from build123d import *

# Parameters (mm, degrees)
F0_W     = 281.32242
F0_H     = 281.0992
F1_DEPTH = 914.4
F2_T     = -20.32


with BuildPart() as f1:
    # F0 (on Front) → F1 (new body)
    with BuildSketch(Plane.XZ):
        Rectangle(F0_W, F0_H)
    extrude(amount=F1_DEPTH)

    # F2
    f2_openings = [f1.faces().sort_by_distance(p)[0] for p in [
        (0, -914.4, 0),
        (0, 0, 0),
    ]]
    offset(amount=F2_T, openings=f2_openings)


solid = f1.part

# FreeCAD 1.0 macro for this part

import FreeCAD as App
import Part
import Sketcher

V = App.Vector
Q = App.Units.Quantity


def faces_at(feature, points):
    """Names of the faces that lie closest to the given points."""
    faces = feature.Shape.Faces
    near = lambda p: min(range(len(faces)), key=lambda i: faces[i].distToShape(Part.Vertex(*p))[0])
    return sorted({f"Face{near(p) + 1}" for p in points})

doc = App.newDocument("Part")
params = doc.addObject("Spreadsheet::Sheet", "Params")
for row, (alias, value) in enumerate([
    ("pad1_length", "36 in"),
    ("thickness_wall", "0.8 in"),
], start=1):
    params.set(f"A{row}", alias)
    params.set(f"B{row}", "=" + value)
    params.setAlias(f"B{row}", alias)

body = doc.addObject("PartDesign::Body", "Body")

# Sketch on XZ plane
sketch1 = body.newObject("Sketcher::SketchObject", "Sketch")
sketch1.AttachmentSupport = (doc.getObject("XZ_Plane"), [""])
sketch1.MapMode = "FlatFace"
sketch1.addGeometry(Part.LineSegment(V(-140.66121, 140.5496, 0), V(-140.66121, -140.5496, 0)), False)
sketch1.addGeometry(Part.LineSegment(V(-140.66121, -140.5496, 0), V(140.66121, -140.5496, 0)), False)
sketch1.addGeometry(Part.LineSegment(V(140.66121, -140.5496, 0), V(140.66121, 140.5496, 0)), False)
sketch1.addGeometry(Part.LineSegment(V(140.66121, 140.5496, 0), V(-140.66121, 140.5496, 0)), False)
sketch1.addConstraint(Sketcher.Constraint("Coincident", 0, 2, 1, 1))
sketch1.addConstraint(Sketcher.Constraint("Coincident", 1, 2, 2, 1))
sketch1.addConstraint(Sketcher.Constraint("Coincident", 2, 2, 3, 1))
sketch1.addConstraint(Sketcher.Constraint("Coincident", 3, 2, 0, 1))
sketch1.addConstraint(Sketcher.Constraint("Vertical", 0))
sketch1.addConstraint(Sketcher.Constraint("Horizontal", 1))
sketch1.addConstraint(Sketcher.Constraint("Vertical", 2))
sketch1.addConstraint(Sketcher.Constraint("Horizontal", 3))
sketch1.addConstraint(Sketcher.Constraint("Symmetric", 0, 2, 2, 2, -1, 1))
sketch1.addConstraint(Sketcher.Constraint("DistanceY", 0, 2, 0, 1, Q("281.0992 mm")))
sketch1.addConstraint(Sketcher.Constraint("DistanceX", 1, 1, 1, 2, Q("281.32242 mm")))
pad1 = body.newObject("PartDesign::Pad", "Pad")
pad1.Profile = sketch1
pad1.setExpression("Length", "Params.pad1_length")
doc.recompute()

thickness = body.newObject("PartDesign::Thickness", "Thickness")
thickness.Base = (pad1, faces_at(pad1, [(0, -914.4, 0), (0, 0, 0)]))
thickness.setExpression("Value", "Params.thickness_wall")
thickness.Reversed = True
thickness.Join = "Arc"

doc.recompute()
